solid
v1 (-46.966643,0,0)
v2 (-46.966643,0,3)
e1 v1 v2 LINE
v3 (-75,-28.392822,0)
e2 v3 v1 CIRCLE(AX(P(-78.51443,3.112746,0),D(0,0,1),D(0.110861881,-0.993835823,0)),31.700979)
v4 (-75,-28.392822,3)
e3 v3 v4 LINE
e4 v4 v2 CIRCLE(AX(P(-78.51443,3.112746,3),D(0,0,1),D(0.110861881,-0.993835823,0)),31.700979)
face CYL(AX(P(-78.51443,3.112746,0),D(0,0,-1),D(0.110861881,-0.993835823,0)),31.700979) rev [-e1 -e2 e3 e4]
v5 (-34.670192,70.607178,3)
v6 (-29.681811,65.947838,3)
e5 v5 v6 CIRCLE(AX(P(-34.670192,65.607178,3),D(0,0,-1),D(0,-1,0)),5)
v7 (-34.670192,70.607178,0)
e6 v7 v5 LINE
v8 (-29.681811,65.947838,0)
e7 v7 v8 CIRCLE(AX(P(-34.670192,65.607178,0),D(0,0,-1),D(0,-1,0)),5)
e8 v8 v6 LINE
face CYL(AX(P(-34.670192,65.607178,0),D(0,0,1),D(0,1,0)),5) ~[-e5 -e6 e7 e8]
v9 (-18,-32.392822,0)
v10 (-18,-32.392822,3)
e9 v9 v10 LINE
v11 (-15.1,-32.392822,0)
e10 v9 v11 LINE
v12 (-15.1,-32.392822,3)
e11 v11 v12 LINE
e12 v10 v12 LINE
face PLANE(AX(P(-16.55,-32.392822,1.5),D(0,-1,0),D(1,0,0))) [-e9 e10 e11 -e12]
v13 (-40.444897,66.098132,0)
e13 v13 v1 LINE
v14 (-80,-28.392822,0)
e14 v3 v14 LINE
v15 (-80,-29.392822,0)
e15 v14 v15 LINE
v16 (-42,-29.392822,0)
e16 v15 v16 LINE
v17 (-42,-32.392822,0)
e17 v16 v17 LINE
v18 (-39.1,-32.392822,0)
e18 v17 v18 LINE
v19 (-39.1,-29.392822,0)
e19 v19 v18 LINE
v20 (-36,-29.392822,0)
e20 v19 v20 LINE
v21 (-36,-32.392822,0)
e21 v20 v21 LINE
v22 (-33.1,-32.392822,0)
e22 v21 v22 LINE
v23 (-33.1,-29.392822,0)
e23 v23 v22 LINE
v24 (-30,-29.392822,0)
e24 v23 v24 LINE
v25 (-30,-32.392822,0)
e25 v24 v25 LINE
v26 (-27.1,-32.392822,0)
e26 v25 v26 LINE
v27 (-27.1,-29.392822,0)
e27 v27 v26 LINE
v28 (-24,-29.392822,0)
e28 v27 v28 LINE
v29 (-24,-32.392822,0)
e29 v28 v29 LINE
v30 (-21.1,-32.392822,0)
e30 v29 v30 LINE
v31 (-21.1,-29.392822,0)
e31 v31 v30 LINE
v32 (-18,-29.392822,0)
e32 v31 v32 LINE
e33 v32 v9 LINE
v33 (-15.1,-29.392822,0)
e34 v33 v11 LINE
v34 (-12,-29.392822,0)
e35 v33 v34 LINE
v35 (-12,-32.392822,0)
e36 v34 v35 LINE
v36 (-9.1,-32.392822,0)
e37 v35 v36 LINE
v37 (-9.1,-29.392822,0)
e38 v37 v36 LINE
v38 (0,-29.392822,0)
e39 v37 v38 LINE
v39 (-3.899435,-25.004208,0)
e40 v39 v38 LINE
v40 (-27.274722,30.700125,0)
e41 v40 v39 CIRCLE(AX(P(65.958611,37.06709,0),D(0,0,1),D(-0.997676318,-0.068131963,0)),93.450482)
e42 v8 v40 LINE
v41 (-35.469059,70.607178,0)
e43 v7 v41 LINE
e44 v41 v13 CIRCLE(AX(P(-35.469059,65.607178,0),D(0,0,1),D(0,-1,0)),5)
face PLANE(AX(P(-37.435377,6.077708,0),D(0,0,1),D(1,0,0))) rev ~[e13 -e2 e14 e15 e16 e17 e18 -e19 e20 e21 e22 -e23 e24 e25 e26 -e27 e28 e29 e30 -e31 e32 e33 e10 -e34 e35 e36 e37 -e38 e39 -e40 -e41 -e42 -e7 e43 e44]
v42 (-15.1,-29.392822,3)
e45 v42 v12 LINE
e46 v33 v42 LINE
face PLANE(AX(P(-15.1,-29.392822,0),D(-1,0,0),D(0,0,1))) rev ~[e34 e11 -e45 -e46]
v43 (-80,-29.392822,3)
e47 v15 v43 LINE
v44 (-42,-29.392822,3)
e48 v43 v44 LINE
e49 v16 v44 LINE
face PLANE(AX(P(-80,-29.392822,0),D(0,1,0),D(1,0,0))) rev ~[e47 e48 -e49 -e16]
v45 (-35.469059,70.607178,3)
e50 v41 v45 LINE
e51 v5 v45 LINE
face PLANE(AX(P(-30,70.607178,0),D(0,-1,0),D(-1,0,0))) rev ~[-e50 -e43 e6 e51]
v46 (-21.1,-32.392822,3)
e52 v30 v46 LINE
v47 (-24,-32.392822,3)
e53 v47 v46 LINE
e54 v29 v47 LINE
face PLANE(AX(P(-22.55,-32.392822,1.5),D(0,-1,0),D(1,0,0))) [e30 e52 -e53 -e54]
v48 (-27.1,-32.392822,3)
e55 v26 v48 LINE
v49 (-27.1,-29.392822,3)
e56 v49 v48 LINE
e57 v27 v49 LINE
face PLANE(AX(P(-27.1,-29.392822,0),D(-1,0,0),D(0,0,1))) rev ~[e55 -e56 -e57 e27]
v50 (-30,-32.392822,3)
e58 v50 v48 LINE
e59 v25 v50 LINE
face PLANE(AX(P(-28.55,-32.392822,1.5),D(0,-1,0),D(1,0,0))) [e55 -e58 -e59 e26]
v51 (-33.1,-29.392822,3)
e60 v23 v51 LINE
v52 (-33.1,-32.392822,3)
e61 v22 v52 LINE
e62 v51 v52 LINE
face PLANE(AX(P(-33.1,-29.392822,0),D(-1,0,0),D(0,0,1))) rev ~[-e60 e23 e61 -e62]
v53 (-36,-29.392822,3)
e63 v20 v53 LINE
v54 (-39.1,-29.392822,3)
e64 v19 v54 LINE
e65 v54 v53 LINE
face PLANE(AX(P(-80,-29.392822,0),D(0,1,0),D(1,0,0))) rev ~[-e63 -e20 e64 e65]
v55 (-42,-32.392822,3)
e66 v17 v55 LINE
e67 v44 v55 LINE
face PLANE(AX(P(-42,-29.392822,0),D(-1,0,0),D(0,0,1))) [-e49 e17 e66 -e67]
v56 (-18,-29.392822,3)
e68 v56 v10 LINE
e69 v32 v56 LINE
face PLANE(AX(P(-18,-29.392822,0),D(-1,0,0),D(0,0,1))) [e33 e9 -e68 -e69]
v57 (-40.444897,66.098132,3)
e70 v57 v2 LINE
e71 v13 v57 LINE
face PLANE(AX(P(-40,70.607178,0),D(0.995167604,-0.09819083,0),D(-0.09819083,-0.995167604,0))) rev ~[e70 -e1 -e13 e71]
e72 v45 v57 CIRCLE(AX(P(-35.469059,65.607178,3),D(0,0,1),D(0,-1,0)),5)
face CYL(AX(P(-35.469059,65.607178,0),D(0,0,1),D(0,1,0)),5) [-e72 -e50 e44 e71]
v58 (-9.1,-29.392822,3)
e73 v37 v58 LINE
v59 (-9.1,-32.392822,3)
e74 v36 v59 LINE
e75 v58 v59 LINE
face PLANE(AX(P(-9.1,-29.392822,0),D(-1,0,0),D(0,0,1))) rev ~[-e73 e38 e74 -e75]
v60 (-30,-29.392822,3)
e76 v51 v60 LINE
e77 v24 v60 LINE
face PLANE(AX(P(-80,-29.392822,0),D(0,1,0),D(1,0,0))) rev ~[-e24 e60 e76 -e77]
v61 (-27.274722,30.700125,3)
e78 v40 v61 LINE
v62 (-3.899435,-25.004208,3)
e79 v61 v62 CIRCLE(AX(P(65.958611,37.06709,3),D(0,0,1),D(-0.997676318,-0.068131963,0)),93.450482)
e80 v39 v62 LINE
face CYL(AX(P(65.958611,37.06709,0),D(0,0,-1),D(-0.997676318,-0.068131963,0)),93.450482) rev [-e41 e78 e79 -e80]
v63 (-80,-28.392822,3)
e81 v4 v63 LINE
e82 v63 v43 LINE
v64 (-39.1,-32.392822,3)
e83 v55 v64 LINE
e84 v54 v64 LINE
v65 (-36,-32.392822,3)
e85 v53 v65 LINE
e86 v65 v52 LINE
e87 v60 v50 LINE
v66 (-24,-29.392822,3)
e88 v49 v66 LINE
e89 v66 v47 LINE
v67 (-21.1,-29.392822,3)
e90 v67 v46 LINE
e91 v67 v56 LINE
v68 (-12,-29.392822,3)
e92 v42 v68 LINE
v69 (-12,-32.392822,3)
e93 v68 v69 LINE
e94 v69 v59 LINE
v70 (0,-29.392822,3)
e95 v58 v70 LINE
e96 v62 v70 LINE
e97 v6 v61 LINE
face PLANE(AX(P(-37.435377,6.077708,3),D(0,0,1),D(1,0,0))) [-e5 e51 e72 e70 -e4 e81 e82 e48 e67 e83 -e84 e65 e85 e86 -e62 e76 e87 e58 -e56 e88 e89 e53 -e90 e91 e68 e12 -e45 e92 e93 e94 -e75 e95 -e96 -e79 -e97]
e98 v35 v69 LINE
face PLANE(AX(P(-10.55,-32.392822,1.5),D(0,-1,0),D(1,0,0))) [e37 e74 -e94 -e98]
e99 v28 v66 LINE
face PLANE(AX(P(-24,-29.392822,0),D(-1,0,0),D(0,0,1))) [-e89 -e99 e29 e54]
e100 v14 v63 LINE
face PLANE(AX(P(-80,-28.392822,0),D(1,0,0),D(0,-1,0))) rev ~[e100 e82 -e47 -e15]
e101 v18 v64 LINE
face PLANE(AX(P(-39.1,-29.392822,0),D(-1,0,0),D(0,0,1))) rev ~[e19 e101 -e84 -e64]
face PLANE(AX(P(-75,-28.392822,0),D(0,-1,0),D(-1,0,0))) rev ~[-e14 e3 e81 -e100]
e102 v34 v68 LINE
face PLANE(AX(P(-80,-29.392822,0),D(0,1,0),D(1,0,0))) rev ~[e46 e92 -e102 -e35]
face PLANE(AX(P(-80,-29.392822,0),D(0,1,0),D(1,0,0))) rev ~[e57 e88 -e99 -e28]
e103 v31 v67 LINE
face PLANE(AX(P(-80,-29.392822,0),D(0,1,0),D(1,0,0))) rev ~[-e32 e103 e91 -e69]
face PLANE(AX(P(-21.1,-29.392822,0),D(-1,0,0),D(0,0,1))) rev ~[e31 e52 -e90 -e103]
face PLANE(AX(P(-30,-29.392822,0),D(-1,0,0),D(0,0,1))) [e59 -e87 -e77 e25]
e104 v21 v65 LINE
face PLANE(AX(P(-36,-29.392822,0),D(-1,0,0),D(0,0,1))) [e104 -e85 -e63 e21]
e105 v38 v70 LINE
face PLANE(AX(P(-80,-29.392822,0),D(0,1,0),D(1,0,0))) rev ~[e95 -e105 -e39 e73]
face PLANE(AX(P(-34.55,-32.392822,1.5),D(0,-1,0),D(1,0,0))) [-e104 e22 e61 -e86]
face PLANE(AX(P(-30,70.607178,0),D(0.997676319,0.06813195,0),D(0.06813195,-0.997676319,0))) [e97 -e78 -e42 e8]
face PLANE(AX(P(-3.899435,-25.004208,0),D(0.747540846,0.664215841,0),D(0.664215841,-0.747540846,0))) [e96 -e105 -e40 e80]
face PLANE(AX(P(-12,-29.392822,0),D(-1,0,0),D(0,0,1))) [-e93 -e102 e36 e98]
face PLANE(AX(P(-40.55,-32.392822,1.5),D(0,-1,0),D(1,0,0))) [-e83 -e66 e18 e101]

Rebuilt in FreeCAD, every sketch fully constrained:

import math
import FreeCAD as App
import Part
import Sketcher
from FreeCAD import Vector
Q = App.Units.Quantity


def edges_at(feature, points):
    """Names of the edges that pass closest to the given points."""
    edges = feature.Shape.Edges
    near = lambda p: min(range(len(edges)), key=lambda i: edges[i].distToShape(Part.Vertex(*p))[0])
    return sorted({f"Edge{near(p) + 1}" for p in points})


def add_polygon(sketch, points):
    """Adds a closed chain of lines whose ends are joined by coincident constraints."""
    first, n = sketch.GeometryCount, len(points)
    for a, b in zip(points, points[1:] + points[:1]):
        sketch.addGeometry(Part.LineSegment(App.Vector(*a, 0), App.Vector(*b, 0)), False)
    for i in range(n):
        sketch.addConstraint(Sketcher.Constraint("Coincident", first + i, 2, first + (i + 1) % n, 1))

doc = App.newDocument("Part")
body = doc.addObject("PartDesign::Body", "Body")

# Sketch on XY plane
sketch1 = doc.addObject("Sketcher::SketchObject", "Sketch")
body.addObject(sketch1)
sketch1.AttachmentSupport = (doc.XY_Plane, [""])
sketch1.MapMode = "FlatFace"
sketch1.addGeometry(Part.LineSegment(Vector(-80, -29.4, 0), Vector(0, -29.4, 0)), False)
sketch1.addGeometry(Part.LineSegment(Vector(0, -29.4, 0), Vector(-3.9, -25, 0)), False)
sketch1.addGeometry(Part.ArcOfCircle(Part.Circle(Vector(66, 37.1, 0), Vector(0, 0, 1), 93.5), math.radians(-176), math.radians(-138)), False)
sketch1.addGeometry(Part.LineSegment(Vector(-27.3, 30.7, 0), Vector(-30, 70.6, 0)), False)
sketch1.addGeometry(Part.LineSegment(Vector(-30, 70.6, 0), Vector(-40, 70.6, 0)), False)
sketch1.addGeometry(Part.LineSegment(Vector(-40, 70.6, 0), Vector(-47, 0, 0)), False)
sketch1.addGeometry(Part.ArcOfCircle(Part.Circle(Vector(-78.5, 3.1, 0), Vector(0, 0, 1), 31.7), math.radians(-84), math.radians(-6)), False)
sketch1.addGeometry(Part.LineSegment(Vector(-75, -28.4, 0), Vector(-80, -28.4, 0)), False)
sketch1.addGeometry(Part.LineSegment(Vector(-80, -28.4, 0), Vector(-80, -29.4, 0)), False)
sketch1.addConstraint(Sketcher.Constraint("Coincident", 0, 2, 1, 1))
sketch1.addConstraint(Sketcher.Constraint("Tangent", 1, 2, 2, 2))
sketch1.addConstraint(Sketcher.Constraint("Tangent", 2, 1, 3, 1))
sketch1.addConstraint(Sketcher.Constraint("Coincident", 3, 2, 4, 1))
sketch1.addConstraint(Sketcher.Constraint("Coincident", 4, 2, 5, 1))
sketch1.addConstraint(Sketcher.Constraint("Tangent", 5, 2, 6, 2))
sketch1.addConstraint(Sketcher.Constraint("Coincident", 6, 1, 7, 1))
sketch1.addConstraint(Sketcher.Constraint("Coincident", 7, 2, 8, 1))
sketch1.addConstraint(Sketcher.Constraint("Coincident", 8, 2, 0, 1))
sketch1.addConstraint(Sketcher.Constraint("Horizontal", 0))
sketch1.addConstraint(Sketcher.Constraint("Horizontal", 4))
sketch1.addConstraint(Sketcher.Constraint("Horizontal", 7))
sketch1.addConstraint(Sketcher.Constraint("Vertical", 8))
sketch1.addConstraint(Sketcher.Constraint("PointOnObject", 0, 2, -2))
sketch1.addConstraint(Sketcher.Constraint("PointOnObject", 5, 2, -1))
sketch1.addConstraint(Sketcher.Constraint("DistanceX", 0, 1, 0, 2, Q("80 mm")))
sketch1.addConstraint(Sketcher.Constraint("DistanceX", 4, 2, 4, 1, Q("10 mm")))
sketch1.addConstraint(Sketcher.Constraint("DistanceX", 7, 2, 7, 1, Q("5 mm")))
sketch1.addConstraint(Sketcher.Constraint("DistanceY", 8, 2, 8, 1, Q("1 mm")))
sketch1.addConstraint(Sketcher.Constraint("Distance", 3, Q("40 mm")))
sketch1.addConstraint(Sketcher.Constraint("DistanceX", 3, 2, -1, 1, Q("30 mm")))
sketch1.addConstraint(Sketcher.Constraint("DistanceY", 0, 2, 3, 2, Q("100 mm")))
sketch1.addConstraint(Sketcher.Constraint("Radius", 2, Q("93.450482 mm")))
sketch1.addConstraint(Sketcher.Constraint("Radius", 6, Q("31.700979 mm")))
sketch1.addConstraint(Sketcher.Constraint("DistanceX", -1, 1, 2, 3, Q("65.958611 mm")))
sketch1.addConstraint(Sketcher.Constraint("DistanceY", -1, 1, 2, 3, Q("37.06709 mm")))
pad1 = doc.addObject("PartDesign::Pad", "Pad")
body.addObject(pad1)
pad1.Profile = sketch1
pad1.Length = 3
doc.recompute()

fillet = doc.addObject("PartDesign::Fillet", "Fillet")
body.addObject(fillet)
fillet.Base = (pad1, edges_at(pad1, [(-40, 70.607, 1.5)]))
fillet.Radius = 5
doc.recompute()

fillet2 = doc.addObject("PartDesign::Fillet", "Fillet001")
body.addObject(fillet2)
fillet2.Base = (fillet, edges_at(fillet, [(-30, 70.607, 1.5)]))
fillet2.Radius = 5

# Sketch on XZ plane
sketch2 = doc.addObject("Sketcher::SketchObject", "Sketch001")
body.addObject(sketch2)
sketch2.AttachmentSupport = (doc.XZ_Plane, [""])
sketch2.MapMode = "FlatFace"
sketch2.AttachmentOffset = App.Placement(Vector(0, 0, 29.392822), App.Rotation())
add_polygon(sketch2, [(-42, 3), (-42, 0), (-39.1, 0), (-39.1, 3)])  # lines 0-3
sketch2.addConstraint(Sketcher.Constraint("Vertical", 0))
sketch2.addConstraint(Sketcher.Constraint("Horizontal", 1))
sketch2.addConstraint(Sketcher.Constraint("Vertical", 2))
sketch2.addConstraint(Sketcher.Constraint("Horizontal", 3))
sketch2.addConstraint(Sketcher.Constraint("PointOnObject", 0, 2, -1))
sketch2.addConstraint(Sketcher.Constraint("DistanceY", 0, 2, 0, 1, Q("3 mm")))
sketch2.addConstraint(Sketcher.Constraint("DistanceX", 1, 1, 1, 2, Q("2.9 mm")))
sketch2.addConstraint(Sketcher.Constraint("DistanceX", 0, 2, -1, 1, Q("42 mm")))
pad2 = doc.addObject("PartDesign::Pad", "Pad001")
body.addObject(pad2)
pad2.Profile = sketch2
pad2.Length = 3
doc.recompute()

linearpattern = doc.addObject("PartDesign::LinearPattern", "LinearPattern")
body.addObject(linearpattern)
linearpattern.Originals = [pad2]
linearpattern.Direction = (doc.X_Axis, [""])
linearpattern.Mode = "offset"
linearpattern.Offset = 6
linearpattern.Occurrences = 6
body.Tip = linearpattern

doc.recompute()
